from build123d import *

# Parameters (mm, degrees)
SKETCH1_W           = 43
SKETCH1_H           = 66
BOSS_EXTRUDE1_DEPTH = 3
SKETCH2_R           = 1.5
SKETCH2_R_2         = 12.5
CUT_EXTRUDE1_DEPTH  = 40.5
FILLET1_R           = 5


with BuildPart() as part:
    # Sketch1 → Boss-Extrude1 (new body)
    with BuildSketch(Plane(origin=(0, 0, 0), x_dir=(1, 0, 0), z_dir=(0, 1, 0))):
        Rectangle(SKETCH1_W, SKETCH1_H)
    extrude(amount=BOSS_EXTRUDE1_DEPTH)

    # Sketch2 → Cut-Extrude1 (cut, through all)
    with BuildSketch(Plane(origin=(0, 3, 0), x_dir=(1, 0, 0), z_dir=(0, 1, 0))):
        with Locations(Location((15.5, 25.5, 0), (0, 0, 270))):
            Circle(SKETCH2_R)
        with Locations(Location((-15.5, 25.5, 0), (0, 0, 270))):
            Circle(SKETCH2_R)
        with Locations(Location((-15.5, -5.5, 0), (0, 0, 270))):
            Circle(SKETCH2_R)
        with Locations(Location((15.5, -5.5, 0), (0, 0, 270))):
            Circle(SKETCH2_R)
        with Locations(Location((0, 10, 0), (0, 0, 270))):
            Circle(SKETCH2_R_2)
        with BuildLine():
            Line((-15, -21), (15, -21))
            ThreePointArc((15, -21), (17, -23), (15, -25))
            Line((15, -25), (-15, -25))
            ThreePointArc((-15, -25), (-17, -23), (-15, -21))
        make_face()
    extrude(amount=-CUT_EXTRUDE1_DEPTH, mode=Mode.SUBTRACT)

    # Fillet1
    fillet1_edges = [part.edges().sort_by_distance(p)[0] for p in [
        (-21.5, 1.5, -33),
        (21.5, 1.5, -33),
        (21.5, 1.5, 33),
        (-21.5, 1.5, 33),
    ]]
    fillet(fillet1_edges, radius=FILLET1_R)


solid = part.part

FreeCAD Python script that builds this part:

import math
import FreeCAD as App
import Part
import Sketcher
Q = App.Units.Quantity


def edges_at(feature, points):
    """Names of the edges that pass closest to the given points."""
    edges = feature.Shape.Edges
    near = lambda p: min(range(len(edges)), key=lambda i: edges[i].distToShape(Part.Vertex(*p))[0])
    return sorted({f"Edge{near(p) + 1}" for p in points})

doc = App.newDocument("Part")
body = doc.addObject("PartDesign::Body", "Body")

# Sketch on XZ plane
sketch1 = body.newObject("Sketcher::SketchObject", "Sketch")
sketch1.AttachmentSupport = (doc.getObject("XZ_Plane"), [""])
sketch1.MapMode = "FlatFace"
sketch1.addGeometry(Part.LineSegment(App.Vector(-22, -33, 0), App.Vector(-22, 33, 0)), False)
sketch1.addGeometry(Part.LineSegment(App.Vector(-22, 33, 0), App.Vector(22, 33, 0)), False)
sketch1.addGeometry(Part.LineSegment(App.Vector(22, 33, 0), App.Vector(22, -33, 0)), False)
sketch1.addGeometry(Part.LineSegment(App.Vector(22, -33, 0), App.Vector(-22, -33, 0)), False)
sketch1.addConstraint(Sketcher.Constraint("Coincident", 0, 2, 1, 1))
sketch1.addConstraint(Sketcher.Constraint("Coincident", 1, 2, 2, 1))
sketch1.addConstraint(Sketcher.Constraint("Coincident", 2, 2, 3, 1))
sketch1.addConstraint(Sketcher.Constraint("Coincident", 3, 2, 0, 1))
sketch1.addConstraint(Sketcher.Constraint("Vertical", 0))
sketch1.addConstraint(Sketcher.Constraint("Horizontal", 1))
sketch1.addConstraint(Sketcher.Constraint("Vertical", 2))
sketch1.addConstraint(Sketcher.Constraint("Horizontal", 3))
sketch1.addConstraint(Sketcher.Constraint("Symmetric", 0, 2, 2, 2, -1, 1))
sketch1.addConstraint(Sketcher.Constraint("DistanceX", 1, 1, 1, 2, Q("43 mm")))
sketch1.addConstraint(Sketcher.Constraint("DistanceY", 0, 1, 0, 2, Q("66 mm")))
pad1 = body.newObject("PartDesign::Pad", "Pad")
pad1.Profile = sketch1
pad1.Length = 3
pad1.Reversed = True

# Sketch on XZ plane
sketch2 = body.newObject("Sketcher::SketchObject", "Sketch001")
sketch2.AttachmentSupport = (doc.getObject("XZ_Plane"), [""])
sketch2.MapMode = "FlatFace"
sketch2.AttachmentOffset = App.Placement(App.Vector(0, 0, -3), App.Rotation())
sketch2.addGeometry(Part.Circle(App.Vector(15.5, -25.5, 0), App.Vector(0, 0, 1), 1.5), False)
sketch2.addGeometry(Part.Circle(App.Vector(-15.5, -25.5, 0), App.Vector(0, 0, 1), 1.5), False)
sketch2.addGeometry(Part.Circle(App.Vector(-15.5, 5.5, 0), App.Vector(0, 0, 1), 1.5), False)
sketch2.addGeometry(Part.Circle(App.Vector(15.5, 5.5, 0), App.Vector(0, 0, 1), 1.5), False)
sketch2.addGeometry(Part.Circle(App.Vector(0, -10, 0), App.Vector(0, 0, 1), 12.5), False)
sketch2.addGeometry(Part.LineSegment(App.Vector(15, 21, 0), App.Vector(-15, 21, 0)), False)
sketch2.addGeometry(Part.ArcOfCircle(Part.Circle(App.Vector(-15, 23, 0), App.Vector(0, 0, 1), 2), math.radians(90), math.radians(270)), False)
sketch2.addGeometry(Part.LineSegment(App.Vector(-15, 25, 0), App.Vector(15, 25, 0)), False)
sketch2.addGeometry(Part.ArcOfCircle(Part.Circle(App.Vector(15, 23, 0), App.Vector(0, 0, 1), 2), math.radians(-90), math.radians(90)), False)
sketch2.addConstraint(Sketcher.Constraint("Tangent", 5, 2, 6, 2))
sketch2.addConstraint(Sketcher.Constraint("Tangent", 6, 1, 7, 1))
sketch2.addConstraint(Sketcher.Constraint("Tangent", 7, 2, 8, 2))
sketch2.addConstraint(Sketcher.Constraint("Tangent", 8, 1, 5, 1))
sketch2.addConstraint(Sketcher.Constraint("Horizontal", 5))
sketch2.addConstraint(Sketcher.Constraint("Horizontal", 7))
sketch2.addConstraint(Sketcher.Constraint("Equal", 0, 1))
sketch2.addConstraint(Sketcher.Constraint("Equal", 1, 2))
sketch2.addConstraint(Sketcher.Constraint("Equal", 2, 3))
sketch2.addConstraint(Sketcher.Constraint("Symmetric", 0, 3, 1, 3, -2))
sketch2.addConstraint(Sketcher.Constraint("Symmetric", 2, 3, 3, 3, -2))
sketch2.addConstraint(Sketcher.Constraint("PointOnObject", 4, 3, -2))
sketch2.addConstraint(Sketcher.Constraint("Vertical", 1, 3, 2, 3))
sketch2.addConstraint(Sketcher.Constraint("Diameter", 0, Q("3 mm")))
sketch2.addConstraint(Sketcher.Constraint("Diameter", 4, Q("25 mm")))
sketch2.addConstraint(Sketcher.Constraint("Radius", 6, Q("2 mm")))
sketch2.addConstraint(Sketcher.Constraint("DistanceX", 5, 2, 5, 1, Q("30 mm")))
sketch2.addConstraint(Sketcher.Constraint("DistanceY", 4, 3, -1, 1, Q("10 mm")))
sketch2.addConstraint(Sketcher.Constraint("DistanceX", 6, 3, -1, 1, Q("15 mm")))
sketch2.addConstraint(Sketcher.Constraint("DistanceY", -1, 1, 6, 3, Q("23 mm")))
sketch2.addConstraint(Sketcher.Constraint("DistanceX", 1, 3, 0, 3, Q("31 mm")))
sketch2.addConstraint(Sketcher.Constraint("DistanceY", 1, 3, 2, 3, Q("31 mm")))
sketch2.addConstraint(Sketcher.Constraint("DistanceY", 0, 3, -1, 1, Q("25.5 mm")))
pocket1 = body.newObject("PartDesign::Pocket", "Pocket")
pocket1.Profile = sketch2
pocket1.Type = "ThroughAll"
pocket1.Reversed = True
doc.recompute()

fillet = body.newObject("PartDesign::Fillet", "Fillet")
fillet.Base = (pocket1, edges_at(pocket1, [
    (-21.5, 1.5, -33),
    (21.5, 1.5, -33),
    (21.5, 1.5, 33),
    (-21.5, 1.5, 33),
]))
fillet.Radius = 5

doc.recompute()
